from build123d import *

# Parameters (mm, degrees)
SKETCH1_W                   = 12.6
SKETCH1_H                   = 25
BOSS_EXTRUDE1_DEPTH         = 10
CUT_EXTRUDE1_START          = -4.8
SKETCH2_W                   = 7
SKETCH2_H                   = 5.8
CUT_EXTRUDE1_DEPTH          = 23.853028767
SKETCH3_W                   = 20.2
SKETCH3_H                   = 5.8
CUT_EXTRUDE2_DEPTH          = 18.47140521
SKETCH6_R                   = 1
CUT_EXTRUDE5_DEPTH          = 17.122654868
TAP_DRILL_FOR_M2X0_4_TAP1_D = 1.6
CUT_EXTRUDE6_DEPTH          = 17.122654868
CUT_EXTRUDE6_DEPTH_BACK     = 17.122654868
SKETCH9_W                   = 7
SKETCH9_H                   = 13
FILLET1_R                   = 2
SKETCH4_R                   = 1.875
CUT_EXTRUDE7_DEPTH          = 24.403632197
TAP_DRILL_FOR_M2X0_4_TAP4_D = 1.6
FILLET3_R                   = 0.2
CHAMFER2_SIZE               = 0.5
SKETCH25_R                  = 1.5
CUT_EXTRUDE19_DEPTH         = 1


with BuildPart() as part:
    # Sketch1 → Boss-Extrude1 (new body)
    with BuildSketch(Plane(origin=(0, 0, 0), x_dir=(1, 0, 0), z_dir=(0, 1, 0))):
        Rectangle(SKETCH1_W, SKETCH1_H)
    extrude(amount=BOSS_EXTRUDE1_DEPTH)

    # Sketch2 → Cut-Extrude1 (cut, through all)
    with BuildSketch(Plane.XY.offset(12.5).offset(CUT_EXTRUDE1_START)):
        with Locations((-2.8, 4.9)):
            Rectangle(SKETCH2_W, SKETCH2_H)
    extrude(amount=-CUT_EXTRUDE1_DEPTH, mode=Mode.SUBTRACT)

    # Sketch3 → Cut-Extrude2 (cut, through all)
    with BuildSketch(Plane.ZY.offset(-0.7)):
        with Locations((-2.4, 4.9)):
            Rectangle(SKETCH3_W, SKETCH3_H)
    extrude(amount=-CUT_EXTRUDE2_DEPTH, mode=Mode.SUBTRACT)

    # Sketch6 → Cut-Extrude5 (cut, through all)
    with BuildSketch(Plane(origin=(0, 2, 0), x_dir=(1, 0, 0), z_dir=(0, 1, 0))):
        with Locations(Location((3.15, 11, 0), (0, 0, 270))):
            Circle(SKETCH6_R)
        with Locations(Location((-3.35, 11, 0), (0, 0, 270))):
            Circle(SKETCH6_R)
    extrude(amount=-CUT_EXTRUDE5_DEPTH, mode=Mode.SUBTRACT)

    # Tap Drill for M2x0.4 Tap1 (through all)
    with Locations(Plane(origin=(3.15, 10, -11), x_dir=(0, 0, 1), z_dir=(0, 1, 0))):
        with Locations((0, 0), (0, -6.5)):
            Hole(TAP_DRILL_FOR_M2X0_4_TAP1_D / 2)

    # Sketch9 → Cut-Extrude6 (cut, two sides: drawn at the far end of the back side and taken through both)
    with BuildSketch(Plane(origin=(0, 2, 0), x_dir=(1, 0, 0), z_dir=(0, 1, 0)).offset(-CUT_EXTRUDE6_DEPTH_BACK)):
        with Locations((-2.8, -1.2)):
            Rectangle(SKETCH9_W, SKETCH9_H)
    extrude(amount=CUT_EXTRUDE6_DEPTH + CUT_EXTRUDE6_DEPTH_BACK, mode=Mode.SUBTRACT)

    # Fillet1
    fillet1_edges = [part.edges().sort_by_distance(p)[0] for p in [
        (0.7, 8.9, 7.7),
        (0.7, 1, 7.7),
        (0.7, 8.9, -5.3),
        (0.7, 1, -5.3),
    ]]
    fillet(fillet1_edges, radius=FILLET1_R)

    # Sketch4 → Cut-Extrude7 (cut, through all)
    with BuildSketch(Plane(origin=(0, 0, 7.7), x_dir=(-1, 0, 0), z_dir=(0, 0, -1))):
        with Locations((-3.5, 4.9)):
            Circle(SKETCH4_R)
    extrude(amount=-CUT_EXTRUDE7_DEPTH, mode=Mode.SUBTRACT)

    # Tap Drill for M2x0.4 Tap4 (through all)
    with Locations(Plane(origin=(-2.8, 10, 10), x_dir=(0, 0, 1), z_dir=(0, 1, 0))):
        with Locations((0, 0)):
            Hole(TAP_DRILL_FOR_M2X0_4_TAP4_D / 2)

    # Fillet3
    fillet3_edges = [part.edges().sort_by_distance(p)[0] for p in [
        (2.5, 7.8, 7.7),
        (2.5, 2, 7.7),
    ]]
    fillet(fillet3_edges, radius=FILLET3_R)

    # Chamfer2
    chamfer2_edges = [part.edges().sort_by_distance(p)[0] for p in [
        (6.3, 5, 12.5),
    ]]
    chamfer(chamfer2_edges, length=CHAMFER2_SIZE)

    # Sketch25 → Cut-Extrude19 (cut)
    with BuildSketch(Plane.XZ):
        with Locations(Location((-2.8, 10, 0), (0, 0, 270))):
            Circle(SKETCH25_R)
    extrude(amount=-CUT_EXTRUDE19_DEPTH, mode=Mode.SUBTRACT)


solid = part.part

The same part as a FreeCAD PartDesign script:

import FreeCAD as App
import Part
import Sketcher

V = App.Vector


def edges_at(feature, points):
    """Names of the edges that pass closest to the given points."""
    edges = feature.Shape.Edges
    near = lambda p: min(range(len(edges)), key=lambda i: edges[i].distToShape(Part.Vertex(*p))[0])
    return sorted({f"Edge{near(p) + 1}" for p in points})

doc = App.newDocument("Part")
body = doc.addObject("PartDesign::Body", "Body")

# Sketch on XZ plane
sketch1 = body.newObject("Sketcher::SketchObject", "Sketch")
sketch1.AttachmentSupport = (doc.getObject("XZ_Plane"), [""])
sketch1.MapMode = "FlatFace"
sketch1.addGeometry([
    Part.LineSegment(V(-6.3, -12.5, 0), V(-6.3, 12.5, 0)),
    Part.LineSegment(V(-6.3, 12.5, 0), V(6.3, 12.5, 0)),
    Part.LineSegment(V(6.3, 12.5, 0), V(6.3, -12.5, 0)),
    Part.LineSegment(V(6.3, -12.5, 0), V(-6.3, -12.5, 0)),
], False)
sketch1.addConstraint([
    Sketcher.Constraint("Coincident", 0, 2, 1, 1),
    Sketcher.Constraint("Coincident", 1, 2, 2, 1),
    Sketcher.Constraint("Coincident", 2, 2, 3, 1),
    Sketcher.Constraint("Coincident", 3, 2, 0, 1),
    Sketcher.Constraint("Vertical", 0),
    Sketcher.Constraint("Horizontal", 1),
    Sketcher.Constraint("Vertical", 2),
    Sketcher.Constraint("Horizontal", 3),
    Sketcher.Constraint("Symmetric", 0, 2, 2, 2, -1, 1),
    Sketcher.Constraint("DistanceY", 0, 1, 0, 2, 25.0),
    Sketcher.Constraint("DistanceX", 1, 1, 1, 2, 12.6),
])
pad1 = body.newObject("PartDesign::Pad", "Pad")
pad1.Profile = sketch1
pad1.Length = 10
pad1.Reversed = True

# Sketch on XY plane
sketch2 = body.newObject("Sketcher::SketchObject", "Sketch001")
sketch2.AttachmentSupport = (doc.getObject("XY_Plane"), [""])
sketch2.MapMode = "FlatFace"
sketch2.AttachmentOffset = App.Placement(V(0, 0, 7.7), App.Rotation())
sketch2.addGeometry([
    Part.LineSegment(V(-6.3, 7.8, 0), V(-6.3, 2, 0)),
    Part.LineSegment(V(-6.3, 2, 0), V(0.7, 2, 0)),
    Part.LineSegment(V(0.7, 2, 0), V(0.7, 7.8, 0)),
    Part.LineSegment(V(0.7, 7.8, 0), V(-6.3, 7.8, 0)),
], False)
sketch2.addConstraint([
    Sketcher.Constraint("Coincident", 0, 2, 1, 1),
    Sketcher.Constraint("Coincident", 1, 2, 2, 1),
    Sketcher.Constraint("Coincident", 2, 2, 3, 1),
    Sketcher.Constraint("Coincident", 3, 2, 0, 1),
    Sketcher.Constraint("Vertical", 0),
    Sketcher.Constraint("Horizontal", 1),
    Sketcher.Constraint("Vertical", 2),
    Sketcher.Constraint("Horizontal", 3),
    Sketcher.Constraint("DistanceX", 1, 1, 1, 2, 7.0),
    Sketcher.Constraint("DistanceY", 0, 2, 0, 1, 5.8),
    Sketcher.Constraint("DistanceY", -1, 1, 0, 2, 2.0),
    Sketcher.Constraint("DistanceX", 0, 2, -1, 1, 6.3),
])
pocket1 = body.newObject("PartDesign::Pocket", "Pocket")
pocket1.Profile = sketch2
pocket1.Type = "ThroughAll"

# Sketch on YZ plane
sketch3 = body.newObject("Sketcher::SketchObject", "Sketch002")
sketch3.AttachmentSupport = (doc.getObject("YZ_Plane"), [""])
sketch3.MapMode = "FlatFace"
sketch3.AttachmentOffset = App.Placement(V(0, 0, 0.7), App.Rotation())
sketch3.addGeometry([
    Part.LineSegment(V(7.8, -12.5, 0), V(2, -12.5, 0)),
    Part.LineSegment(V(2, -12.5, 0), V(2, 7.7, 0)),
    Part.LineSegment(V(2, 7.7, 0), V(7.8, 7.7, 0)),
    Part.LineSegment(V(7.8, 7.7, 0), V(7.8, -12.5, 0)),
], False)
sketch3.addConstraint([
    Sketcher.Constraint("Coincident", 0, 2, 1, 1),
    Sketcher.Constraint("Coincident", 1, 2, 2, 1),
    Sketcher.Constraint("Coincident", 2, 2, 3, 1),
    Sketcher.Constraint("Coincident", 3, 2, 0, 1),
    Sketcher.Constraint("Horizontal", 0),
    Sketcher.Constraint("Vertical", 1),
    Sketcher.Constraint("Horizontal", 2),
    Sketcher.Constraint("Vertical", 3),
    Sketcher.Constraint("DistanceX", 0, 2, 0, 1, 5.8),
    Sketcher.Constraint("DistanceY", 1, 1, 1, 2, 20.2),
    Sketcher.Constraint("DistanceX", -1, 1, 0, 2, 2.0),
    Sketcher.Constraint("DistanceY", 0, 2, -1, 1, 12.5),
])
pocket2 = body.newObject("PartDesign::Pocket", "Pocket001")
pocket2.Profile = sketch3
pocket2.Type = "ThroughAll"
pocket2.Reversed = True

# Sketch on XZ plane
sketch4 = body.newObject("Sketcher::SketchObject", "Sketch003")
sketch4.AttachmentSupport = (doc.getObject("XZ_Plane"), [""])
sketch4.MapMode = "FlatFace"
sketch4.AttachmentOffset = App.Placement(V(0, 0, -2), App.Rotation())
sketch4.addGeometry([
    Part.Circle(V(3.15, -11, 0), V(0, 0, 1), 1),
    Part.Circle(V(-3.35, -11, 0), V(0, 0, 1), 1),
], False)
sketch4.addConstraint([
    Sketcher.Constraint("Equal", 0, 1),
    Sketcher.Constraint("Horizontal", 0, 3, 1, 3),
    Sketcher.Constraint("Diameter", 0, 2.0),
    Sketcher.Constraint("DistanceY", 0, 3, -1, 1, 11.0),
    Sketcher.Constraint("DistanceX", 1, 3, 0, 3, 6.5),
    Sketcher.Constraint("DistanceX", -1, 1, 0, 3, 3.15),
])
pocket3 = body.newObject("PartDesign::Pocket", "Pocket002")
pocket3.Profile = sketch4
pocket3.Type = "ThroughAll"
pocket3.Reversed = True

# Sketch on XZ plane
sketch5 = body.newObject("Sketcher::SketchObject", "Sketch004")
sketch5.AttachmentSupport = (doc.getObject("XZ_Plane"), [""])
sketch5.MapMode = "FlatFace"
sketch5.AttachmentOffset = App.Placement(V(0, 0, -10), App.Rotation())
sketch5.addGeometry([
    Part.Circle(V(3.15, -11, 0), V(0, 0, 1), 0.8),
    Part.Circle(V(-3.35, -11, 0), V(0, 0, 1), 0.8),
], False)
sketch5.addConstraint([
    Sketcher.Constraint("Equal", 0, 1),
    Sketcher.Constraint("Horizontal", 0, 3, 1, 3),
    Sketcher.Constraint("Diameter", 0, 1.6),
    Sketcher.Constraint("DistanceY", 0, 3, -1, 1, 11.0),
    Sketcher.Constraint("DistanceX", 1, 3, 0, 3, 6.5),
    Sketcher.Constraint("DistanceX", -1, 1, 0, 3, 3.15),
])
doc.recompute()
hole = body.newObject("PartDesign::Hole", "Hole")
hole.Profile = sketch5
hole.ThreadType = "None"
hole.Diameter = 1.6
hole.DepthType = "ThroughAll"
hole.Reversed = True

# Sketch on XZ plane
sketch6 = body.newObject("Sketcher::SketchObject", "Sketch005")
sketch6.AttachmentSupport = (doc.getObject("XZ_Plane"), [""])
sketch6.MapMode = "FlatFace"
sketch6.AttachmentOffset = App.Placement(V(0, 0, -2), App.Rotation())
sketch6.addGeometry([
    Part.LineSegment(V(-6.3, -5.3, 0), V(-6.3, 7.7, 0)),
    Part.LineSegment(V(-6.3, 7.7, 0), V(0.7, 7.7, 0)),
    Part.LineSegment(V(0.7, 7.7, 0), V(0.7, -5.3, 0)),
    Part.LineSegment(V(0.7, -5.3, 0), V(-6.3, -5.3, 0)),
], False)
sketch6.addConstraint([
    Sketcher.Constraint("Coincident", 0, 2, 1, 1),
    Sketcher.Constraint("Coincident", 1, 2, 2, 1),
    Sketcher.Constraint("Coincident", 2, 2, 3, 1),
    Sketcher.Constraint("Coincident", 3, 2, 0, 1),
    Sketcher.Constraint("Vertical", 0),
    Sketcher.Constraint("Horizontal", 1),
    Sketcher.Constraint("Vertical", 2),
    Sketcher.Constraint("Horizontal", 3),
    Sketcher.Constraint("DistanceX", 1, 1, 1, 2, 7.0),
    Sketcher.Constraint("DistanceY", 0, 1, 0, 2, 13.0),
    Sketcher.Constraint("DistanceX", 0, 2, -1, 1, 6.3),
    Sketcher.Constraint("DistanceY", -1, 1, 0, 2, 7.7),
])
pocket4 = body.newObject("PartDesign::Pocket", "Pocket003")
pocket4.Profile = sketch6
pocket4.Type = "ThroughAll"
pocket4.Midplane = True
doc.recompute()

fillet = body.newObject("PartDesign::Fillet", "Fillet")
fillet.Base = (pocket4, edges_at(pocket4, [
    (0.7, 8.9, 7.7),
    (0.7, 1, 7.7),
    (0.7, 8.9, -5.3),
    (0.7, 1, -5.3),
]))
fillet.Radius = 2

# Sketch on XY plane
sketch7 = body.newObject("Sketcher::SketchObject", "Sketch006")
sketch7.AttachmentSupport = (doc.getObject("XY_Plane"), [""])
sketch7.MapMode = "FlatFace"
sketch7.AttachmentOffset = App.Placement(V(0, 0, 7.7), App.Rotation())
sketch7.addGeometry(Part.Circle(V(3.5, 4.9, 0), V(0, 0, 1), 1.875), False)
sketch7.addConstraint([
    Sketcher.Constraint("Diameter", 0, 3.75),
    Sketcher.Constraint("DistanceX", -1, 1, 0, 3, 3.5),
    Sketcher.Constraint("DistanceY", -1, 1, 0, 3, 4.9),
])
pocket5 = body.newObject("PartDesign::Pocket", "Pocket004")
pocket5.Profile = sketch7
pocket5.Type = "ThroughAll"
pocket5.Reversed = True

# Sketch on XZ plane
sketch8 = body.newObject("Sketcher::SketchObject", "Sketch007")
sketch8.AttachmentSupport = (doc.getObject("XZ_Plane"), [""])
sketch8.MapMode = "FlatFace"
sketch8.AttachmentOffset = App.Placement(V(0, 0, -10), App.Rotation())
sketch8.addGeometry(Part.Circle(V(-2.8, 10, 0), V(0, 0, 1), 0.8), False)
sketch8.addConstraint([
    Sketcher.Constraint("Diameter", 0, 1.6),
    Sketcher.Constraint("DistanceY", -1, 1, 0, 3, 10.0),
    Sketcher.Constraint("DistanceX", 0, 3, -1, 1, 2.8),
])
doc.recompute()
hole2 = body.newObject("PartDesign::Hole", "Hole001")
hole2.Profile = sketch8
hole2.ThreadType = "None"
hole2.Diameter = 1.6
hole2.DepthType = "ThroughAll"
hole2.Reversed = True
doc.recompute()

fillet2 = body.newObject("PartDesign::Fillet", "Fillet001")
fillet2.Base = (hole2, edges_at(hole2, [(2.5, 7.8, 7.7), (2.5, 2, 7.7)]))
fillet2.Radius = 0.2
doc.recompute()

chamfer = body.newObject("PartDesign::Chamfer", "Chamfer")
chamfer.Base = (fillet2, edges_at(fillet2, [(6.3, 5, 12.5)]))
chamfer.Size = 0.5

# Sketch on XZ plane
sketch9 = body.newObject("Sketcher::SketchObject", "Sketch008")
sketch9.AttachmentSupport = (doc.getObject("XZ_Plane"), [""])
sketch9.MapMode = "FlatFace"
sketch9.addGeometry(Part.Circle(V(-2.8, 10, 0), V(0, 0, 1), 1.5), False)
sketch9.addConstraint([
    Sketcher.Constraint("Diameter", 0, 3.0),
    Sketcher.Constraint("DistanceY", -1, 1, 0, 3, 10.0),
    Sketcher.Constraint("DistanceX", 0, 3, -1, 1, 2.8),
])
pocket6 = body.newObject("PartDesign::Pocket", "Pocket005")
pocket6.Profile = sketch9
pocket6.Length = 1

doc.recompute()
